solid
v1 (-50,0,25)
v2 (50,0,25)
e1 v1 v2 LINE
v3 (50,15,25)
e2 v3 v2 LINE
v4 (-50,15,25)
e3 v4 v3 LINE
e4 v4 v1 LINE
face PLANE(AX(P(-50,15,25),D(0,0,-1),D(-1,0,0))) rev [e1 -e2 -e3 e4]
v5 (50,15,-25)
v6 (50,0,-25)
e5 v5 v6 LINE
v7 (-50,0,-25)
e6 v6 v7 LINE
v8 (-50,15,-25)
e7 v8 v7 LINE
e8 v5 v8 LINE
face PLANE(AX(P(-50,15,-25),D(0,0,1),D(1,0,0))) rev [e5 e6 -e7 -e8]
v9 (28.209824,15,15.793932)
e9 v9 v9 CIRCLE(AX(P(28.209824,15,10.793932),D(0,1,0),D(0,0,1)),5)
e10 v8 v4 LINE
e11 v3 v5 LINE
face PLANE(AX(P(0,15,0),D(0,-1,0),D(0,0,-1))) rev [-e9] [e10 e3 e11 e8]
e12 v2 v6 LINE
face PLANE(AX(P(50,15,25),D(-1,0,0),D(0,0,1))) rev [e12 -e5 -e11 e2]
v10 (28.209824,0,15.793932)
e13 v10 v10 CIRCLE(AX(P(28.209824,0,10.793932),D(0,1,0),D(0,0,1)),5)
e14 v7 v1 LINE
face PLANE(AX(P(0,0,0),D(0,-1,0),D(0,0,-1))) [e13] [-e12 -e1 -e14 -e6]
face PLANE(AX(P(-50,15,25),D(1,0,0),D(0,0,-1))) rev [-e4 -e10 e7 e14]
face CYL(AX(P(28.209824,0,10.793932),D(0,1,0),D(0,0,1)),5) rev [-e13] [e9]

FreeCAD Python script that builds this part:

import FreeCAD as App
import Part
import Sketcher


def add_polygon(sketch, points):
    """Adds a closed chain of lines whose ends are joined by coincident constraints."""
    first, n = sketch.GeometryCount, len(points)
    for a, b in zip(points, points[1:] + points[:1]):
        sketch.addGeometry(Part.LineSegment(App.Vector(*a, 0), App.Vector(*b, 0)), False)
    for i in range(n):
        sketch.addConstraint(Sketcher.Constraint("Coincident", first + i, 2, first + (i + 1) % n, 1))

doc = App.newDocument("Part")
body = doc.addObject("PartDesign::Body", "Body")

# Sketch on XZ plane
sketch1 = body.newObject("Sketcher::SketchObject", "Sketch")
sketch1.AttachmentSupport = (doc.getObject("XZ_Plane"), [""])
sketch1.MapMode = "FlatFace"
add_polygon(sketch1, [(-50, -25), (-50, 25), (50, 25), (50, -25)])  # lines 0-3
sketch1.addConstraint(Sketcher.Constraint("Vertical", 0))
sketch1.addConstraint(Sketcher.Constraint("Horizontal", 1))
sketch1.addConstraint(Sketcher.Constraint("Vertical", 2))
sketch1.addConstraint(Sketcher.Constraint("Horizontal", 3))
sketch1.addConstraint(Sketcher.Constraint("Symmetric", 0, 2, 2, 2, -1, 1))
sketch1.addConstraint(Sketcher.Constraint("DistanceX", 1, 1, 1, 2, 100.0))
sketch1.addConstraint(Sketcher.Constraint("DistanceY", 0, 1, 0, 2, 50.0))
pad1 = body.newObject("PartDesign::Pad", "Pad")
pad1.Profile = sketch1
pad1.Length = 15
pad1.Reversed = True

# Sketch on XZ plane
sketch2 = body.newObject("Sketcher::SketchObject", "Sketch001")
sketch2.AttachmentSupport = (doc.getObject("XZ_Plane"), [""])
sketch2.MapMode = "FlatFace"
sketch2.AttachmentOffset = App.Placement(App.Vector(0, 0, -15), App.Rotation())
sketch2.addGeometry(Part.Circle(App.Vector(28, 11, 0), App.Vector(0, 0, 1), 5), False)
sketch2.addConstraint(Sketcher.Constraint("Diameter", 0, 10.0))
sketch2.addConstraint(Sketcher.Constraint("DistanceX", -1, 1, 0, 3, 28.209824))
sketch2.addConstraint(Sketcher.Constraint("DistanceY", -1, 1, 0, 3, 10.793932))
pocket1 = body.newObject("PartDesign::Pocket", "Pocket")
pocket1.Profile = sketch2
pocket1.Length = 15
pocket1.Reversed = True

doc.recompute()
